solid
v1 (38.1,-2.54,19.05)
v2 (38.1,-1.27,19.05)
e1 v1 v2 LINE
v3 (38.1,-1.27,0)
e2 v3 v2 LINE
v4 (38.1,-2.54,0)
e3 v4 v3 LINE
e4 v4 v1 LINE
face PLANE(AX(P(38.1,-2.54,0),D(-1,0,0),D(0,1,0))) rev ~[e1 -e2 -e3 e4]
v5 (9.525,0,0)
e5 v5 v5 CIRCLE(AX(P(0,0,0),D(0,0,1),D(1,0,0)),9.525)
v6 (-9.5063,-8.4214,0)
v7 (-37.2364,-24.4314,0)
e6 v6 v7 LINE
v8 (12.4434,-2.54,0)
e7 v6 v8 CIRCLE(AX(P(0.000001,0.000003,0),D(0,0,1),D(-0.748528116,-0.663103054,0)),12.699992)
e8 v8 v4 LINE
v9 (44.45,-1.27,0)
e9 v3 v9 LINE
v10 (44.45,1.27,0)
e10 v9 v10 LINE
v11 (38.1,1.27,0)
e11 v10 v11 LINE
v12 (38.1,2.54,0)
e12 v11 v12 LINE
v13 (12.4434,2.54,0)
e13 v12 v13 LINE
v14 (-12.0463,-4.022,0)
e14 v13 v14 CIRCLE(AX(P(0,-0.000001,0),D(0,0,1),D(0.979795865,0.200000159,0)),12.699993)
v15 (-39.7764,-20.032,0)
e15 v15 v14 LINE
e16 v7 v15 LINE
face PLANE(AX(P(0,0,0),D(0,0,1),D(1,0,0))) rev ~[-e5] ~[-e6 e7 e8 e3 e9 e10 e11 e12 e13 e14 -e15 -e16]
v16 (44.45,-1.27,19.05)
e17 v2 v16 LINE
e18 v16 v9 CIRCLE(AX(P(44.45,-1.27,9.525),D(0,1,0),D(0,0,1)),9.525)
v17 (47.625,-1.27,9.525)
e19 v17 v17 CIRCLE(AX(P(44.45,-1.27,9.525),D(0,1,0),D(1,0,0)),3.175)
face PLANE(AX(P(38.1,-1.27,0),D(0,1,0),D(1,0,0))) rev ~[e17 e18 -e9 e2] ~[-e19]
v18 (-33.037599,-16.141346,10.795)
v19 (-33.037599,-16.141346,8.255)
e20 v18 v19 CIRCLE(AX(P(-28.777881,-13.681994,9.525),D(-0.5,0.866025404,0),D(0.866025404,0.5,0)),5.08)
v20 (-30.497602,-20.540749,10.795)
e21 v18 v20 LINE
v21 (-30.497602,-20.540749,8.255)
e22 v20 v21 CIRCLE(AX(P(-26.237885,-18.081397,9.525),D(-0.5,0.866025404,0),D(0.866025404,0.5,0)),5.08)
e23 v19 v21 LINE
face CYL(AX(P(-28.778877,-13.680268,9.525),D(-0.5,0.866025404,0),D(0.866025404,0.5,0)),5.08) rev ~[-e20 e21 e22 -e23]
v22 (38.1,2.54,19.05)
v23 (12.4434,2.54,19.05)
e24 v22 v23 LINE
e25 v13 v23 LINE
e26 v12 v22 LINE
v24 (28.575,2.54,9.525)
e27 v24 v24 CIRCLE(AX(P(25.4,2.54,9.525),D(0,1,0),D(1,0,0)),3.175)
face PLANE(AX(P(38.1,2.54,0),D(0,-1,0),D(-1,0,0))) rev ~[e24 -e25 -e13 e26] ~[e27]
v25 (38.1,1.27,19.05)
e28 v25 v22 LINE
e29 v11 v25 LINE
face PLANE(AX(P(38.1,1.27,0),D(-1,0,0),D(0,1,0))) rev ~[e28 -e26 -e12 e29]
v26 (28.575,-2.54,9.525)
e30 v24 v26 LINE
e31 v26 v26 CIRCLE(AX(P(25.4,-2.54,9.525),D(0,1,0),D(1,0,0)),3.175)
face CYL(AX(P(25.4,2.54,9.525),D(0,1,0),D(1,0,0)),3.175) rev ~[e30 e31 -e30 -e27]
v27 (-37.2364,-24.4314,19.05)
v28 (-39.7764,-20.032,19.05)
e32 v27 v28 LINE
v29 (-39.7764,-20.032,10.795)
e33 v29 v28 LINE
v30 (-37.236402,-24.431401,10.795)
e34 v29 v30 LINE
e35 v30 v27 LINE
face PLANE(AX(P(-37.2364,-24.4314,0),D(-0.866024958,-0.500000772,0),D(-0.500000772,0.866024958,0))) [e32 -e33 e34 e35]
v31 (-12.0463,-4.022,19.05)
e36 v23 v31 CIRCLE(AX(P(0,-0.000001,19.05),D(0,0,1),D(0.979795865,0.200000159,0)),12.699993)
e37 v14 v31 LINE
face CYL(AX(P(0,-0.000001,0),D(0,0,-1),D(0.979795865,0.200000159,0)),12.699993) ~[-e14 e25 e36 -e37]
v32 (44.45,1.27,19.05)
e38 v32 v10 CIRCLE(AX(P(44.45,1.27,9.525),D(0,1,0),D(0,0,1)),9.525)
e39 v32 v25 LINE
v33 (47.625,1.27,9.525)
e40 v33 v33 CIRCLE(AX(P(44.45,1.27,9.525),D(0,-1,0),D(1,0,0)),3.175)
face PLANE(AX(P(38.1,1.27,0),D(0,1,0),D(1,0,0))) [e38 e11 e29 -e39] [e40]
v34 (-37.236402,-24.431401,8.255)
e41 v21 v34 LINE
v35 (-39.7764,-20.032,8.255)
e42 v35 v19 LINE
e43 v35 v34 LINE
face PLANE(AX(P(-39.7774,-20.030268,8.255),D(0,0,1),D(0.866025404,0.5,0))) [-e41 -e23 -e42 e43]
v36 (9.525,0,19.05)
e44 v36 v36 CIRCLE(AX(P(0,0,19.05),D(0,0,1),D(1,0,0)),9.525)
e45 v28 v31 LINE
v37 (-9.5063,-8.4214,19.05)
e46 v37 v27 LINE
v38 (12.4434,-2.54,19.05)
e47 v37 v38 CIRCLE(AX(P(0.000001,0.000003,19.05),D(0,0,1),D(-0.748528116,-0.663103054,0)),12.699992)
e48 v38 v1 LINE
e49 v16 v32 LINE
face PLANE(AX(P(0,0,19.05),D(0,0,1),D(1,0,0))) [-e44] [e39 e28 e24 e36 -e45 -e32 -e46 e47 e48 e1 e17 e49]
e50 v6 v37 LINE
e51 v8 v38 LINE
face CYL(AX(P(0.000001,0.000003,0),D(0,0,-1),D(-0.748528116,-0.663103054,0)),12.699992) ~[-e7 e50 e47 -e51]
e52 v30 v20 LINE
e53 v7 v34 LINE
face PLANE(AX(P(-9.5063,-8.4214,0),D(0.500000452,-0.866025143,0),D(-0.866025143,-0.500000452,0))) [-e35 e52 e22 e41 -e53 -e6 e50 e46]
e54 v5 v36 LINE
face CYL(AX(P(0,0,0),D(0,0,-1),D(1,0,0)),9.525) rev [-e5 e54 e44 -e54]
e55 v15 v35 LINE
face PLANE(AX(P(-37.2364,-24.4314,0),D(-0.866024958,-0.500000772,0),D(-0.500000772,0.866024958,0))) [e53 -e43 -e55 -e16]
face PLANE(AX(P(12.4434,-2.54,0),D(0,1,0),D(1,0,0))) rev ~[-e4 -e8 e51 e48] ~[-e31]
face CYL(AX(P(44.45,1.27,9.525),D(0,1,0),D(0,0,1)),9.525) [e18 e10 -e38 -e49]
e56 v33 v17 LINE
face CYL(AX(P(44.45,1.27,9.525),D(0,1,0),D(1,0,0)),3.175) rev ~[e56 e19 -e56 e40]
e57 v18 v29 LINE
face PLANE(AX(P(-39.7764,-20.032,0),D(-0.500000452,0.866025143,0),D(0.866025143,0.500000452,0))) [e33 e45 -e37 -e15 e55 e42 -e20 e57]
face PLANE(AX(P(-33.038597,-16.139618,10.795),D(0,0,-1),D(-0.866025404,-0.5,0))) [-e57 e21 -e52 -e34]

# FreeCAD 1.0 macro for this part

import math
import FreeCAD as App
import Part
import Sketcher
Q = App.Units.Quantity

doc = App.newDocument("Part")
body = doc.addObject("PartDesign::Body", "Body")

# Sketch on XY plane
sketch1 = body.newObject("Sketcher::SketchObject", "Sketch")
sketch1.AttachmentSupport = (doc.getObject("XY_Plane"), [""])
sketch1.MapMode = "FlatFace"
sketch1.addGeometry([
    Part.ArcOfCircle(Part.Circle(App.Vector(0, 0, 0), App.Vector(0, 0, 1), 12.7), math.radians(-138), math.radians(-12)),  # 0
    Part.LineSegment(App.Vector(12.4, -2.5, 0), App.Vector(38.1, -2.5, 0)),  # 1
    Part.LineSegment(App.Vector(38.1, -2.5, 0), App.Vector(38.1, -1.3, 0)),  # 2
    Part.LineSegment(App.Vector(38.1, -1.3, 0), App.Vector(44.5, -1.3, 0)),  # 3
    Part.LineSegment(App.Vector(44.5, -1.3, 0), App.Vector(44.5, 1.3, 0)),  # 4
    Part.LineSegment(App.Vector(44.5, 1.3, 0), App.Vector(38.1, 1.3, 0)),  # 5
    Part.LineSegment(App.Vector(38.1, 1.3, 0), App.Vector(38.1, 2.5, 0)),  # 6
    Part.LineSegment(App.Vector(38.1, 2.5, 0), App.Vector(12.4, 2.5, 0)),  # 7
    Part.ArcOfCircle(Part.Circle(App.Vector(0, 0, 0), App.Vector(0, 0, 1), 12.7), math.radians(12), math.radians(198)),  # 8
    Part.LineSegment(App.Vector(-12, -4, 0), App.Vector(-39.8, -20, 0)),  # 9
    Part.LineSegment(App.Vector(-39.8, -20, 0), App.Vector(-37.2, -24.4, 0)),  # 10
    Part.LineSegment(App.Vector(-37.2, -24.4, 0), App.Vector(-9.5, -8.4, 0)),  # 11
    Part.Circle(App.Vector(0, 0, 0), App.Vector(0, 0, 1), 9.5),  # 12
], False)
sketch1.addConstraint([
    Sketcher.Constraint("Coincident", 0, 2, 1, 1),
    Sketcher.Constraint("Coincident", 1, 2, 2, 1),
    Sketcher.Constraint("Coincident", 2, 2, 3, 1),
    Sketcher.Constraint("Coincident", 3, 2, 4, 1),
    Sketcher.Constraint("Coincident", 4, 2, 5, 1),
    Sketcher.Constraint("Coincident", 5, 2, 6, 1),
    Sketcher.Constraint("Coincident", 6, 2, 7, 1),
    Sketcher.Constraint("Coincident", 7, 2, 8, 1),
    Sketcher.Constraint("Coincident", 8, 2, 9, 1),
    Sketcher.Constraint("Coincident", 9, 2, 10, 1),
    Sketcher.Constraint("Coincident", 10, 2, 11, 1),
    Sketcher.Constraint("Coincident", 11, 2, 0, 1),
    Sketcher.Constraint("Horizontal", 1),
    Sketcher.Constraint("Vertical", 2),
    Sketcher.Constraint("Horizontal", 3),
    Sketcher.Constraint("Vertical", 4),
    Sketcher.Constraint("Horizontal", 5),
    Sketcher.Constraint("Vertical", 6),
    Sketcher.Constraint("Horizontal", 7),
    Sketcher.Constraint("Coincident", 0, 3, -1, 1),
    Sketcher.Constraint("Coincident", 8, 3, -1, 1),
    Sketcher.Constraint("Coincident", 12, 3, -1, 1),
    Sketcher.Constraint("Equal", 0, 8),
    Sketcher.Constraint("Symmetric", 2, 2, 5, 2, -1),
    Sketcher.Constraint("Perpendicular", 9, 10),
    Sketcher.Constraint("Perpendicular", 10, 11),
    Sketcher.Constraint("Vertical", 0, 2, 7, 2),
    Sketcher.Constraint("Equal", 9, 11),
    Sketcher.Constraint("Diameter", 12, Q("0.75 in")),
    Sketcher.Constraint("DistanceY", 4, 1, 4, 2, Q("0.1 in")),
    Sketcher.Constraint("Distance", 10, Q("0.2 in")),
    Sketcher.Constraint("DistanceX", 3, 1, 3, 2, Q("0.25 in")),
    Sketcher.Constraint("DistanceY", 2, 1, 2, 2, Q("0.05 in")),
    Sketcher.Constraint("DistanceX", -1, 1, 1, 2, Q("1.5 in")),
    Sketcher.Constraint("Radius", 0, Q("0.5 in")),
    Sketcher.Constraint("DistanceX", 9, 2, 10, 2, Q("0.1 in")),
    Sketcher.Constraint("DistanceX", 9, 2, -1, 1, Q("1.566 in")),
])
pad1 = body.newObject("PartDesign::Pad", "Pad")
pad1.Profile = sketch1
pad1.Length = Q("0.75 in")

# Sketch on XZ plane
sketch2 = body.newObject("Sketcher::SketchObject", "Sketch001")
sketch2.AttachmentSupport = (doc.getObject("XZ_Plane"), [""])
sketch2.MapMode = "FlatFace"
sketch2.AttachmentOffset = App.Placement(App.Vector(0, 0, -0.05 * 25.4), App.Rotation())
sketch2.addGeometry([
    Part.ArcOfCircle(Part.Circle(App.Vector(44, 10, 0), App.Vector(0, 0, 1), 10), math.radians(-90), math.radians(90)),
    Part.LineSegment(App.Vector(44, 0, 0), App.Vector(44, 19, 0)),
], False)
sketch2.addConstraint([
    Sketcher.Constraint("Coincident", 0, 1, 1, 1),
    Sketcher.Constraint("Coincident", 1, 2, 0, 2),
    Sketcher.Constraint("Vertical", 1),
    Sketcher.Constraint("PointOnObject", 0, 1, -1),
    Sketcher.Constraint("Radius", 0, Q("0.375 in")),
    Sketcher.Constraint("DistanceX", -1, 1, 0, 3, Q("1.75 in")),
    Sketcher.Constraint("DistanceX", -1, 1, 0, 1, Q("1.75 in")),
])
pad2 = body.newObject("PartDesign::Pad", "Pad001")
pad2.Profile = sketch2
pad2.Length = Q("0.1 in")

# Sketch on XZ plane
sketch3 = body.newObject("Sketcher::SketchObject", "Sketch002")
sketch3.AttachmentSupport = (doc.getObject("XZ_Plane"), [""])
sketch3.MapMode = "FlatFace"
sketch3.AttachmentOffset = App.Placement(App.Vector(0, 0, -0.05 * 25.4), App.Rotation())
sketch3.addGeometry(Part.Circle(App.Vector(44.5, 9.5, 0), App.Vector(0, 0, 1), 3.2), False)
sketch3.addConstraint([
    Sketcher.Constraint("Diameter", 0, Q("0.25 in")),
    Sketcher.Constraint("DistanceX", -1, 1, 0, 3, Q("1.75 in")),
    Sketcher.Constraint("DistanceY", -1, 1, 0, 3, Q("0.375 in")),
])
pocket1 = body.newObject("PartDesign::Pocket", "Pocket")
pocket1.Profile = sketch3
pocket1.Length = Q("0.1 in")
pocket1.Reversed = True

# Sketch on XZ plane
sketch4 = body.newObject("Sketcher::SketchObject", "Sketch003")
sketch4.AttachmentSupport = (doc.getObject("XZ_Plane"), [""])
sketch4.MapMode = "FlatFace"
sketch4.AttachmentOffset = App.Placement(App.Vector(0, 0, -0.1 * 25.4), App.Rotation())
sketch4.addGeometry(Part.Circle(App.Vector(25.4, 9.5, 0), App.Vector(0, 0, 1), 3.2), False)
sketch4.addConstraint([
    Sketcher.Constraint("Diameter", 0, Q("0.25 in")),
    Sketcher.Constraint("DistanceX", -1, 1, 0, 3, Q("1 in")),
    Sketcher.Constraint("DistanceY", -1, 1, 0, 3, Q("0.375 in")),
])
pocket2 = body.newObject("PartDesign::Pocket", "Pocket001")
pocket2.Profile = sketch4
pocket2.Length = Q("0.2 in")
pocket2.Reversed = True

# Sketch on an angled plane
sketch5 = body.newObject("Sketcher::SketchObject", "Sketch004")
sketch5.Placement = App.Placement(App.Vector(-39.7764, -20.032, 19.05), App.Rotation(App.Vector(0.866025404, 0.5, 0), App.Vector(0, 0, -1), App.Vector(-0.5, 0.866025404, 0), "ZXY"))
sketch5.addGeometry([
    Part.LineSegment(App.Vector(7.8, 10.8, 0), App.Vector(0, 10.8, 0)),
    Part.LineSegment(App.Vector(0, 10.8, 0), App.Vector(0, 8.3, 0)),
    Part.LineSegment(App.Vector(0, 8.3, 0), App.Vector(7.8, 8.3, 0)),
    Part.ArcOfCircle(Part.Circle(App.Vector(12.7, 9.5, 0), App.Vector(0, 0, 1), 5.1), math.radians(-166), math.radians(166)),
], False)
sketch5.addConstraint([
    Sketcher.Constraint("Coincident", 0, 2, 1, 1),
    Sketcher.Constraint("Coincident", 1, 2, 2, 1),
    Sketcher.Constraint("Coincident", 2, 2, 3, 1),
    Sketcher.Constraint("Coincident", 3, 2, 0, 1),
    Sketcher.Constraint("Horizontal", 0),
    Sketcher.Constraint("Vertical", 1),
    Sketcher.Constraint("Horizontal", 2),
    Sketcher.Constraint("PointOnObject", 0, 2, -2),
    Sketcher.Constraint("Vertical", 2, 2, 3, 2),
    Sketcher.Constraint("Radius", 3, Q("0.2 in")),
    Sketcher.Constraint("DistanceX", -1, 1, 3, 3, Q("0.5 in")),
    Sketcher.Constraint("DistanceY", 3, 3, 0, 2, Q("0.05 in")),
    Sketcher.Constraint("DistanceY", -1, 1, 3, 3, Q("0.375 in")),
])
pocket3 = body.newObject("PartDesign::Pocket", "Pocket002")
pocket3.Profile = sketch5
pocket3.Length = Q("0.2 in")

doc.recompute()
